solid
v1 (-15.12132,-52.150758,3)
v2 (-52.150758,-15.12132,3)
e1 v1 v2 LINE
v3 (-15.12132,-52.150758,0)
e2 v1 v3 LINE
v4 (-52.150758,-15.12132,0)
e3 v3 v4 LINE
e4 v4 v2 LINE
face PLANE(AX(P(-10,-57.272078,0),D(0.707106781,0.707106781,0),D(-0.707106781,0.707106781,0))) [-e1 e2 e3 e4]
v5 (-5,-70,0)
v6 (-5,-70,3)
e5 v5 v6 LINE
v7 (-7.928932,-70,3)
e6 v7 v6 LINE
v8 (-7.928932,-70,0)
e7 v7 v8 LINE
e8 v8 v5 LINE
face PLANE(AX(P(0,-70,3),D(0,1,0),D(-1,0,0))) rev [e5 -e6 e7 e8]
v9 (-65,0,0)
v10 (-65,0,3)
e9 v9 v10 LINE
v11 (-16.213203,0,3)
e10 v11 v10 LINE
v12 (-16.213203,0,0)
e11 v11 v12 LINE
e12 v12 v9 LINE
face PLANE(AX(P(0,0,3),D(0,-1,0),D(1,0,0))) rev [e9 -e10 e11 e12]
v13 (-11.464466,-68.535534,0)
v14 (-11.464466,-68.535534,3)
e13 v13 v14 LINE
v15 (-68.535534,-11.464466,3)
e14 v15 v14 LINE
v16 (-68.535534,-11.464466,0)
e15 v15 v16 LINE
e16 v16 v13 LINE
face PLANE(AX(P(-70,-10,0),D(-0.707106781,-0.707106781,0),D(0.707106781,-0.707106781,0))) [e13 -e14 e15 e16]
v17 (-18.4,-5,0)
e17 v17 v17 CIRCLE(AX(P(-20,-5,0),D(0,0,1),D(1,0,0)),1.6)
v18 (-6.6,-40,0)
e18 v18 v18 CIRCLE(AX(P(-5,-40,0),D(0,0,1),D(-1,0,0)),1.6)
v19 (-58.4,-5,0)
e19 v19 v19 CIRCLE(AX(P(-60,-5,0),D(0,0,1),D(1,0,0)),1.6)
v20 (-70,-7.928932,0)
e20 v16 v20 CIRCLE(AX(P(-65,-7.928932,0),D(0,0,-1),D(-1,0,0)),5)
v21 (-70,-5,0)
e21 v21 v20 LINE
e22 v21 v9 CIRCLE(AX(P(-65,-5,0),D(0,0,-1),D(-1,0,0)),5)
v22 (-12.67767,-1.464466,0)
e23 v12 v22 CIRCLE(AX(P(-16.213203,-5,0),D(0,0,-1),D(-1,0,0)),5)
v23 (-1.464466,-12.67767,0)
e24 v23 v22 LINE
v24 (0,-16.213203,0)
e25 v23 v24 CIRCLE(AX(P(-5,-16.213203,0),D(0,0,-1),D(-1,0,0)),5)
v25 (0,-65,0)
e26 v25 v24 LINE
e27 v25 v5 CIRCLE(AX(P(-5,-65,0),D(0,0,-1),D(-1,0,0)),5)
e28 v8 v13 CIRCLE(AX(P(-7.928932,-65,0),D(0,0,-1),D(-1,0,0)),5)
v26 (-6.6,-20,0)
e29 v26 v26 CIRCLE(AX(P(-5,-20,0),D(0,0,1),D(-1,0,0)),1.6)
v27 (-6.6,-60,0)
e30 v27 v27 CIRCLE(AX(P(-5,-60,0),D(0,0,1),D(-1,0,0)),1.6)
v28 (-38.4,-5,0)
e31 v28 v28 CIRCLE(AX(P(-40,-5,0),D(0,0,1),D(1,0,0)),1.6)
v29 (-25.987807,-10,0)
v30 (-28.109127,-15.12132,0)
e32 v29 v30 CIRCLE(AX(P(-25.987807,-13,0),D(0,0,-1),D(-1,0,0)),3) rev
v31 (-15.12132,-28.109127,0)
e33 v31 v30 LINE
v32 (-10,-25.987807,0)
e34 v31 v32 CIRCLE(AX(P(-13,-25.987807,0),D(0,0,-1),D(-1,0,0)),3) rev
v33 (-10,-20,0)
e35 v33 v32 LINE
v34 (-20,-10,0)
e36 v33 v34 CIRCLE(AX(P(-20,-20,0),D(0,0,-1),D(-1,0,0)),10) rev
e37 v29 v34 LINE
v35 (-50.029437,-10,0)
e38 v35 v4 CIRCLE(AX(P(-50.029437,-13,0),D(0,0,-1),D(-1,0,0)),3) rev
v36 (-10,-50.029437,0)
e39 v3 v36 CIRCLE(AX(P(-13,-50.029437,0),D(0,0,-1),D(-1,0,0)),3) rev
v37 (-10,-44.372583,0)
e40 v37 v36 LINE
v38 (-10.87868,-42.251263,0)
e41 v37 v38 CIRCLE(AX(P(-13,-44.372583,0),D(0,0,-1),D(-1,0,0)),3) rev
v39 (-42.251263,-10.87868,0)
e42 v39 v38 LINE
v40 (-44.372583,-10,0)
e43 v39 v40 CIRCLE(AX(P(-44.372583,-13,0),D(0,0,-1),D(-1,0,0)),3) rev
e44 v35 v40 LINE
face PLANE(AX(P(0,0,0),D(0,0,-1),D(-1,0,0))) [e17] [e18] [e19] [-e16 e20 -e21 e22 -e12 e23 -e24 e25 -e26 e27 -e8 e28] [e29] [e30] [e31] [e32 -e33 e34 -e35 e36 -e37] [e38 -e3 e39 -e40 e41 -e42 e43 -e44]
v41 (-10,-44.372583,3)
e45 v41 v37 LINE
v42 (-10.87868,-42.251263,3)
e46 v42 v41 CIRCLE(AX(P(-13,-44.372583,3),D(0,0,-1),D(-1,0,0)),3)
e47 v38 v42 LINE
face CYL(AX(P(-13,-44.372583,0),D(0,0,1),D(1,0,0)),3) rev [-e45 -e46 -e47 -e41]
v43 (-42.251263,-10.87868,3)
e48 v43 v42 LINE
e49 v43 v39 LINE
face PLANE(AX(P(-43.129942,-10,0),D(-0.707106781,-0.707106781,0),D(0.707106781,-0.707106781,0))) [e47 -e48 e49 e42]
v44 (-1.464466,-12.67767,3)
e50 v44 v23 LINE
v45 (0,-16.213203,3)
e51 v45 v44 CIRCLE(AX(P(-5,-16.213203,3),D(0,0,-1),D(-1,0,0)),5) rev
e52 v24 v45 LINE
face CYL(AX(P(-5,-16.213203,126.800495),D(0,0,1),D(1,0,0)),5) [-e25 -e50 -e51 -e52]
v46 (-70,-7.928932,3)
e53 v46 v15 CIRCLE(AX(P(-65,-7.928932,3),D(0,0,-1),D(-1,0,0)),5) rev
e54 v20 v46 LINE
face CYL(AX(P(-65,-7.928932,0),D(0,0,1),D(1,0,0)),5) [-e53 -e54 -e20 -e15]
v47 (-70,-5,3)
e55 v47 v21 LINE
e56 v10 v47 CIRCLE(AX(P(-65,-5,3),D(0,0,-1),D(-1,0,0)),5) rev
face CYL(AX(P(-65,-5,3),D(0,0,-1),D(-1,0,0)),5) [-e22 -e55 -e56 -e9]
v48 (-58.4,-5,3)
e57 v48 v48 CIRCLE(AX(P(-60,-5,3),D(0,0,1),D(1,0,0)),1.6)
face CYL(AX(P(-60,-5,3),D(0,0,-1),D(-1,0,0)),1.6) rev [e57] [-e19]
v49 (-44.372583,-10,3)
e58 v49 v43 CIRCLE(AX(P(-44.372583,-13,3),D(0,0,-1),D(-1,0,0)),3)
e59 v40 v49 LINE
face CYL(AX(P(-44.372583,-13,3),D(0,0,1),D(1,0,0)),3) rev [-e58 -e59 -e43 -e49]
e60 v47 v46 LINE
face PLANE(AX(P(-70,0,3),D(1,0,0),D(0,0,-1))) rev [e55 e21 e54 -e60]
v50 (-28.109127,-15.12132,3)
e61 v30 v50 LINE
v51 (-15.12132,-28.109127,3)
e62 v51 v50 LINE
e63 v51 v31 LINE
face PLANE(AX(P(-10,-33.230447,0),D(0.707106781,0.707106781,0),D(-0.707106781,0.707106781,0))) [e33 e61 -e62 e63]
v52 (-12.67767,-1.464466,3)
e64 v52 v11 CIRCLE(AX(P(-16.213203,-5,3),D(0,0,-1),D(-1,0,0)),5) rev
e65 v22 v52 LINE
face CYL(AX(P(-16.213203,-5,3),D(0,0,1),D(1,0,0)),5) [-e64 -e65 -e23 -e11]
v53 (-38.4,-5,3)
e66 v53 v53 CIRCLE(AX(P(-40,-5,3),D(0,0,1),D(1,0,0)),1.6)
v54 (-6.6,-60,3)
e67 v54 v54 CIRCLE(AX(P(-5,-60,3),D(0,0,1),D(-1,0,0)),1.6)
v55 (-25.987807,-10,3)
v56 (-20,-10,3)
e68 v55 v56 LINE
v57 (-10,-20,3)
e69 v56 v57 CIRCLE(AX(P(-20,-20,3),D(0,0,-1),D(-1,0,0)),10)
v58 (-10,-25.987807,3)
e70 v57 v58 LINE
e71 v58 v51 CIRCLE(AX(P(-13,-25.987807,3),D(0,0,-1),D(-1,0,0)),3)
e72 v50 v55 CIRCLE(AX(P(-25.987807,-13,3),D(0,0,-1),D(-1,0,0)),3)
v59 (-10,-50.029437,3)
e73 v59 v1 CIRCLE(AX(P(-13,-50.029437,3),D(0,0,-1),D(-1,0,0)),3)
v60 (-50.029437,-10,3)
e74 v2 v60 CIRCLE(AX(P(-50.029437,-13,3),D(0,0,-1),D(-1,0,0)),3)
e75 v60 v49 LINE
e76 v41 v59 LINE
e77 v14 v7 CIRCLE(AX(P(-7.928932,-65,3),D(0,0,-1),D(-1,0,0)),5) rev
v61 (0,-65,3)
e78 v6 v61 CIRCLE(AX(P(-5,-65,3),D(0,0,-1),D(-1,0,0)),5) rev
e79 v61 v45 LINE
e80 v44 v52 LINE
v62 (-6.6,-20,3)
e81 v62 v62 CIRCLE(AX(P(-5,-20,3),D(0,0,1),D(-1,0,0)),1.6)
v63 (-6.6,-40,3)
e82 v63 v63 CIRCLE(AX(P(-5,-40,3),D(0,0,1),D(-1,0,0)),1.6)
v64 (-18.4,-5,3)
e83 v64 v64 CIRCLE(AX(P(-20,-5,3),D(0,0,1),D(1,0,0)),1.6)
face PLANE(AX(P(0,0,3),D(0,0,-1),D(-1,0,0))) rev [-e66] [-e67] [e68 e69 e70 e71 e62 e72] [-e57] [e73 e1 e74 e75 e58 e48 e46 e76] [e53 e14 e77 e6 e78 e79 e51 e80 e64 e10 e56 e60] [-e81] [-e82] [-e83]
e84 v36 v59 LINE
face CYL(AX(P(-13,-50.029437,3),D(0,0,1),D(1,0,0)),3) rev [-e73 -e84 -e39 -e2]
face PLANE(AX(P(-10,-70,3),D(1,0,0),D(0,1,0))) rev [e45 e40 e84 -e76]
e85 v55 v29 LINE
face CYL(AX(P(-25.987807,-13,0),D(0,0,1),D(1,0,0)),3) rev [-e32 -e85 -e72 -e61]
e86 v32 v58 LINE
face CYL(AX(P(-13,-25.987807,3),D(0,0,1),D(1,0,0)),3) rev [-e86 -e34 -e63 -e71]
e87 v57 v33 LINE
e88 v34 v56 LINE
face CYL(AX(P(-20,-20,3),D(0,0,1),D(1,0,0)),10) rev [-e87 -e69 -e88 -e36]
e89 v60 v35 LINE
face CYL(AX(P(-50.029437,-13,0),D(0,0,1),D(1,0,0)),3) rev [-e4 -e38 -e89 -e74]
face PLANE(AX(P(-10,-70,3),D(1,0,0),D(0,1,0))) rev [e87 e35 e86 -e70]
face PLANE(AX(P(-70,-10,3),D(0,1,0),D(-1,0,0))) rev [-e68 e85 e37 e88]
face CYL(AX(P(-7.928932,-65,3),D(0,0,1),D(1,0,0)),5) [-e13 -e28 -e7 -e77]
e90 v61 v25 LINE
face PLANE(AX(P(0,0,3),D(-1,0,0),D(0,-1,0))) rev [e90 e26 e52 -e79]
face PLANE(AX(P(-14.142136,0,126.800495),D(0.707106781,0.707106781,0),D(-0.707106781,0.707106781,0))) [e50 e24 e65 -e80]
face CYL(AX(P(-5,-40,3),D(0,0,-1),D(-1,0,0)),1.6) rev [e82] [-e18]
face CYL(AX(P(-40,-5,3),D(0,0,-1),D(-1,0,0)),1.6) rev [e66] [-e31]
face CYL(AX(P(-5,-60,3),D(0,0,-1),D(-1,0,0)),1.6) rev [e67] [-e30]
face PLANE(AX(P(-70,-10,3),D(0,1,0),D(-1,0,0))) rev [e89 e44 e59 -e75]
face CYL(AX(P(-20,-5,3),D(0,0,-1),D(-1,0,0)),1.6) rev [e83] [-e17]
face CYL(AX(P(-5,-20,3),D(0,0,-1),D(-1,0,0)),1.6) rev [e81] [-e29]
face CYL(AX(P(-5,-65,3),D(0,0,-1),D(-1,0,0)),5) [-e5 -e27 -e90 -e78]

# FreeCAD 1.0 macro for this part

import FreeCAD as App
import Part
import Sketcher

V = App.Vector
Q = App.Units.Quantity


def edges_at(feature, points):
    """Names of the edges that pass closest to the given points."""
    edges = feature.Shape.Edges
    near = lambda p: min(range(len(edges)), key=lambda i: edges[i].distToShape(Part.Vertex(*p))[0])
    return sorted({f"Edge{near(p) + 1}" for p in points})


def add_polygon(sketch, points):
    """Adds a closed chain of lines whose ends are joined by coincident constraints."""
    first, n = sketch.GeometryCount, len(points)
    for a, b in zip(points, points[1:] + points[:1]):
        sketch.addGeometry(Part.LineSegment(App.Vector(*a, 0), App.Vector(*b, 0)), False)
    for i in range(n):
        sketch.addConstraint(Sketcher.Constraint("Coincident", first + i, 2, first + (i + 1) % n, 1))

doc = App.newDocument("Part")
body = doc.addObject("PartDesign::Body", "Body")

sketch1 = doc.addObject("Sketcher::SketchObject", "Sketch")
body.addObject(sketch1)
sketch1.AttachmentSupport = (doc.XY_Plane, [""])
sketch1.MapMode = "FlatFace"
add_polygon(sketch1, [(0, 0), (-70, 0), (-70, -10), (-10, -10), (-10, -70), (0, -70)])
sketch1.addGeometry(Part.Circle(V(-5, -60, 0), V(0, 0, 1), 1.6), False)
sketch1.addGeometry(Part.Circle(V(-5, -40, 0), V(0, 0, 1), 1.6), False)
sketch1.addGeometry(Part.Circle(V(-60, -5, 0), V(0, 0, 1), 1.6), False)
sketch1.addGeometry(Part.Circle(V(-40, -5, 0), V(0, 0, 1), 1.6), False)
sketch1.addGeometry(Part.Circle(V(-5, -20, 0), V(0, 0, 1), 1.6), False)
sketch1.addGeometry(Part.Circle(V(-20, -5, 0), V(0, 0, 1), 1.6), False)
sketch1.addConstraint([
    Sketcher.Constraint("Horizontal", 0),
    Sketcher.Constraint("Vertical", 1),
    Sketcher.Constraint("Horizontal", 2),
    Sketcher.Constraint("Vertical", 3),
    Sketcher.Constraint("Horizontal", 4),
    Sketcher.Constraint("Vertical", 5),
    Sketcher.Constraint("Coincident", 5, 2, -1, 1),
    Sketcher.Constraint("Equal", 6, 7),
    Sketcher.Constraint("Equal", 7, 8),
    Sketcher.Constraint("Equal", 8, 9),
    Sketcher.Constraint("Equal", 9, 10),
    Sketcher.Constraint("Equal", 10, 11),
    Sketcher.Constraint("Horizontal", 8, 3, 9, 3),
    Sketcher.Constraint("Horizontal", 9, 3, 11, 3),
    Sketcher.Constraint("Vertical", 6, 3, 7, 3),
    Sketcher.Constraint("Vertical", 7, 3, 10, 3),
    Sketcher.Constraint("Equal", 4, 1),
    Sketcher.Constraint("Equal", 2, 3),
    Sketcher.Constraint("Diameter", 6, Q("3.2 mm")),
    Sketcher.Constraint("DistanceX", 0, 2, 0, 1, Q("70 mm")),
    Sketcher.Constraint("DistanceX", 2, 1, 2, 2, Q("60 mm")),
    Sketcher.Constraint("DistanceX", 6, 3, -1, 1, Q("5 mm")),
    Sketcher.Constraint("DistanceY", 6, 3, -1, 1, Q("60 mm")),
    Sketcher.Constraint("DistanceY", 7, 3, -1, 1, Q("40 mm")),
    Sketcher.Constraint("DistanceX", 8, 3, -1, 1, Q("60 mm")),
    Sketcher.Constraint("DistanceY", 8, 3, -1, 1, Q("5 mm")),
    Sketcher.Constraint("DistanceX", 9, 3, -1, 1, Q("40 mm")),
    Sketcher.Constraint("DistanceY", 10, 3, -1, 1, Q("20 mm")),
    Sketcher.Constraint("DistanceX", 11, 3, -1, 1, Q("20 mm")),
])
pad1 = doc.addObject("PartDesign::Pad", "Pad")
body.addObject(pad1)
pad1.Profile = sketch1
pad1.Length = 3

sketch2 = doc.addObject("Sketcher::SketchObject", "Sketch001")
body.addObject(sketch2)
sketch2.AttachmentSupport = (doc.XY_Plane, [""])
sketch2.MapMode = "FlatFace"
sketch2.AttachmentOffset = App.Placement(V(0, 0, 3), App.Rotation())
add_polygon(sketch2, [(-70, -10), (-10, -70), (-10, -57), (-57, -10)])
sketch2.addConstraint([
    Sketcher.Constraint("Vertical", 1),
    Sketcher.Constraint("Horizontal", 3),
    Sketcher.Constraint("Parallel", 0, 2),
    Sketcher.Constraint("Equal", 3, 1),
    Sketcher.Constraint("DistanceX", 0, 2, -1, 1, Q("10 mm")),
    Sketcher.Constraint("DistanceY", 0, 2, -1, 1, Q("70 mm")),
    Sketcher.Constraint("DistanceY", 2, 2, -1, 1, Q("10 mm")),
    Sketcher.Constraint("DistanceX", 3, 2, 3, 1, Q("12.727922 mm")),
])
pad2 = doc.addObject("PartDesign::Pad", "Pad001")
body.addObject(pad2)
pad2.Profile = sketch2
pad2.Length = 3
pad2.Reversed = True

sketch3 = doc.addObject("Sketcher::SketchObject", "Sketch002")
body.addObject(sketch3)
sketch3.AttachmentSupport = (doc.XY_Plane, [""])
sketch3.MapMode = "FlatFace"
sketch3.AttachmentOffset = App.Placement(V(0, 0, 3), App.Rotation())
add_polygon(sketch3, [(-148, 134), (134, -148), (401, 120), (120, 401)])
sketch3.addConstraint([
    Sketcher.Constraint("Perpendicular", 0, 1),
    Sketcher.Constraint("Perpendicular", 1, 2),
    Sketcher.Constraint("Perpendicular", 2, 3),
    Sketcher.Constraint("Angle", 0, Q("-45 deg")),
    Sketcher.Constraint("DistanceX", -1, 1, 1, 2, Q("401.162961 mm")),
    Sketcher.Constraint("DistanceY", -1, 1, 1, 2, Q("119.578851 mm")),
    Sketcher.Constraint("DistanceX", -1, 1, 2, 2, Q("119.578851 mm")),
    Sketcher.Constraint("Distance", 1, Q("378.220067 mm")),
])
pocket1 = doc.addObject("PartDesign::Pocket", "Pocket")
body.addObject(pocket1)
pocket1.Profile = sketch3
pocket1.Type = "ThroughAll"
pocket1.Midplane = True
doc.recompute()

fillet = doc.addObject("PartDesign::Fillet", "Fillet")
body.addObject(fillet)
fillet.Base = (pocket1, edges_at(pocket1, [
    (0, -70, 1.5),
    (-10, -70, 1.5),
    (-70, -10, 1.5),
    (-70, 0, 1.5),
    (-14.142, 0, 1.5),
    (0, -14.142, 1.5),
]))
fillet.Radius = 5

sketch4 = doc.addObject("Sketcher::SketchObject", "Sketch003")
body.addObject(sketch4)
sketch4.AttachmentSupport = (doc.XY_Plane, [""])
sketch4.MapMode = "FlatFace"
sketch4.AttachmentOffset = App.Placement(V(0, 0, 3), App.Rotation())
add_polygon(sketch4, [(-43, -10), (-10, -43), (-10, -33), (-33, -10)])
sketch4.addConstraint([
    Sketcher.Constraint("Vertical", 1),
    Sketcher.Constraint("Horizontal", 3),
    Sketcher.Constraint("Parallel", 0, 2),
    Sketcher.Constraint("Equal", 3, 1),
    Sketcher.Constraint("DistanceX", 0, 2, -1, 1, Q("10 mm")),
    Sketcher.Constraint("DistanceY", 2, 2, -1, 1, Q("10 mm")),
    Sketcher.Constraint("DistanceX", 3, 2, 3, 1, Q("9.899495 mm")),
    Sketcher.Constraint("Distance", 0, Q("46.852814 mm")),
])
pad3 = doc.addObject("PartDesign::Pad", "Pad002")
body.addObject(pad3)
pad3.Profile = sketch4
pad3.Length = 3
pad3.Reversed = True
doc.recompute()

fillet2 = doc.addObject("PartDesign::Fillet", "Fillet001")
body.addObject(fillet2)
fillet2.Base = (pad3, edges_at(pad3, [
    (-43.13, -10, 1.5),
    (-33.23, -10, 1.5),
    (-10, -33.23, 1.5),
    (-10, -43.13, 1.5),
    (-57.272, -10, 1.5),
    (-10, -57.272, 1.5),
]))
fillet2.Radius = 3
doc.recompute()

fillet3 = doc.addObject("PartDesign::Fillet", "Fillet002")
body.addObject(fillet3)
fillet3.Base = (fillet2, edges_at(fillet2, [(-10, -10, 1.5)]))
fillet3.Radius = 10

doc.recompute()
